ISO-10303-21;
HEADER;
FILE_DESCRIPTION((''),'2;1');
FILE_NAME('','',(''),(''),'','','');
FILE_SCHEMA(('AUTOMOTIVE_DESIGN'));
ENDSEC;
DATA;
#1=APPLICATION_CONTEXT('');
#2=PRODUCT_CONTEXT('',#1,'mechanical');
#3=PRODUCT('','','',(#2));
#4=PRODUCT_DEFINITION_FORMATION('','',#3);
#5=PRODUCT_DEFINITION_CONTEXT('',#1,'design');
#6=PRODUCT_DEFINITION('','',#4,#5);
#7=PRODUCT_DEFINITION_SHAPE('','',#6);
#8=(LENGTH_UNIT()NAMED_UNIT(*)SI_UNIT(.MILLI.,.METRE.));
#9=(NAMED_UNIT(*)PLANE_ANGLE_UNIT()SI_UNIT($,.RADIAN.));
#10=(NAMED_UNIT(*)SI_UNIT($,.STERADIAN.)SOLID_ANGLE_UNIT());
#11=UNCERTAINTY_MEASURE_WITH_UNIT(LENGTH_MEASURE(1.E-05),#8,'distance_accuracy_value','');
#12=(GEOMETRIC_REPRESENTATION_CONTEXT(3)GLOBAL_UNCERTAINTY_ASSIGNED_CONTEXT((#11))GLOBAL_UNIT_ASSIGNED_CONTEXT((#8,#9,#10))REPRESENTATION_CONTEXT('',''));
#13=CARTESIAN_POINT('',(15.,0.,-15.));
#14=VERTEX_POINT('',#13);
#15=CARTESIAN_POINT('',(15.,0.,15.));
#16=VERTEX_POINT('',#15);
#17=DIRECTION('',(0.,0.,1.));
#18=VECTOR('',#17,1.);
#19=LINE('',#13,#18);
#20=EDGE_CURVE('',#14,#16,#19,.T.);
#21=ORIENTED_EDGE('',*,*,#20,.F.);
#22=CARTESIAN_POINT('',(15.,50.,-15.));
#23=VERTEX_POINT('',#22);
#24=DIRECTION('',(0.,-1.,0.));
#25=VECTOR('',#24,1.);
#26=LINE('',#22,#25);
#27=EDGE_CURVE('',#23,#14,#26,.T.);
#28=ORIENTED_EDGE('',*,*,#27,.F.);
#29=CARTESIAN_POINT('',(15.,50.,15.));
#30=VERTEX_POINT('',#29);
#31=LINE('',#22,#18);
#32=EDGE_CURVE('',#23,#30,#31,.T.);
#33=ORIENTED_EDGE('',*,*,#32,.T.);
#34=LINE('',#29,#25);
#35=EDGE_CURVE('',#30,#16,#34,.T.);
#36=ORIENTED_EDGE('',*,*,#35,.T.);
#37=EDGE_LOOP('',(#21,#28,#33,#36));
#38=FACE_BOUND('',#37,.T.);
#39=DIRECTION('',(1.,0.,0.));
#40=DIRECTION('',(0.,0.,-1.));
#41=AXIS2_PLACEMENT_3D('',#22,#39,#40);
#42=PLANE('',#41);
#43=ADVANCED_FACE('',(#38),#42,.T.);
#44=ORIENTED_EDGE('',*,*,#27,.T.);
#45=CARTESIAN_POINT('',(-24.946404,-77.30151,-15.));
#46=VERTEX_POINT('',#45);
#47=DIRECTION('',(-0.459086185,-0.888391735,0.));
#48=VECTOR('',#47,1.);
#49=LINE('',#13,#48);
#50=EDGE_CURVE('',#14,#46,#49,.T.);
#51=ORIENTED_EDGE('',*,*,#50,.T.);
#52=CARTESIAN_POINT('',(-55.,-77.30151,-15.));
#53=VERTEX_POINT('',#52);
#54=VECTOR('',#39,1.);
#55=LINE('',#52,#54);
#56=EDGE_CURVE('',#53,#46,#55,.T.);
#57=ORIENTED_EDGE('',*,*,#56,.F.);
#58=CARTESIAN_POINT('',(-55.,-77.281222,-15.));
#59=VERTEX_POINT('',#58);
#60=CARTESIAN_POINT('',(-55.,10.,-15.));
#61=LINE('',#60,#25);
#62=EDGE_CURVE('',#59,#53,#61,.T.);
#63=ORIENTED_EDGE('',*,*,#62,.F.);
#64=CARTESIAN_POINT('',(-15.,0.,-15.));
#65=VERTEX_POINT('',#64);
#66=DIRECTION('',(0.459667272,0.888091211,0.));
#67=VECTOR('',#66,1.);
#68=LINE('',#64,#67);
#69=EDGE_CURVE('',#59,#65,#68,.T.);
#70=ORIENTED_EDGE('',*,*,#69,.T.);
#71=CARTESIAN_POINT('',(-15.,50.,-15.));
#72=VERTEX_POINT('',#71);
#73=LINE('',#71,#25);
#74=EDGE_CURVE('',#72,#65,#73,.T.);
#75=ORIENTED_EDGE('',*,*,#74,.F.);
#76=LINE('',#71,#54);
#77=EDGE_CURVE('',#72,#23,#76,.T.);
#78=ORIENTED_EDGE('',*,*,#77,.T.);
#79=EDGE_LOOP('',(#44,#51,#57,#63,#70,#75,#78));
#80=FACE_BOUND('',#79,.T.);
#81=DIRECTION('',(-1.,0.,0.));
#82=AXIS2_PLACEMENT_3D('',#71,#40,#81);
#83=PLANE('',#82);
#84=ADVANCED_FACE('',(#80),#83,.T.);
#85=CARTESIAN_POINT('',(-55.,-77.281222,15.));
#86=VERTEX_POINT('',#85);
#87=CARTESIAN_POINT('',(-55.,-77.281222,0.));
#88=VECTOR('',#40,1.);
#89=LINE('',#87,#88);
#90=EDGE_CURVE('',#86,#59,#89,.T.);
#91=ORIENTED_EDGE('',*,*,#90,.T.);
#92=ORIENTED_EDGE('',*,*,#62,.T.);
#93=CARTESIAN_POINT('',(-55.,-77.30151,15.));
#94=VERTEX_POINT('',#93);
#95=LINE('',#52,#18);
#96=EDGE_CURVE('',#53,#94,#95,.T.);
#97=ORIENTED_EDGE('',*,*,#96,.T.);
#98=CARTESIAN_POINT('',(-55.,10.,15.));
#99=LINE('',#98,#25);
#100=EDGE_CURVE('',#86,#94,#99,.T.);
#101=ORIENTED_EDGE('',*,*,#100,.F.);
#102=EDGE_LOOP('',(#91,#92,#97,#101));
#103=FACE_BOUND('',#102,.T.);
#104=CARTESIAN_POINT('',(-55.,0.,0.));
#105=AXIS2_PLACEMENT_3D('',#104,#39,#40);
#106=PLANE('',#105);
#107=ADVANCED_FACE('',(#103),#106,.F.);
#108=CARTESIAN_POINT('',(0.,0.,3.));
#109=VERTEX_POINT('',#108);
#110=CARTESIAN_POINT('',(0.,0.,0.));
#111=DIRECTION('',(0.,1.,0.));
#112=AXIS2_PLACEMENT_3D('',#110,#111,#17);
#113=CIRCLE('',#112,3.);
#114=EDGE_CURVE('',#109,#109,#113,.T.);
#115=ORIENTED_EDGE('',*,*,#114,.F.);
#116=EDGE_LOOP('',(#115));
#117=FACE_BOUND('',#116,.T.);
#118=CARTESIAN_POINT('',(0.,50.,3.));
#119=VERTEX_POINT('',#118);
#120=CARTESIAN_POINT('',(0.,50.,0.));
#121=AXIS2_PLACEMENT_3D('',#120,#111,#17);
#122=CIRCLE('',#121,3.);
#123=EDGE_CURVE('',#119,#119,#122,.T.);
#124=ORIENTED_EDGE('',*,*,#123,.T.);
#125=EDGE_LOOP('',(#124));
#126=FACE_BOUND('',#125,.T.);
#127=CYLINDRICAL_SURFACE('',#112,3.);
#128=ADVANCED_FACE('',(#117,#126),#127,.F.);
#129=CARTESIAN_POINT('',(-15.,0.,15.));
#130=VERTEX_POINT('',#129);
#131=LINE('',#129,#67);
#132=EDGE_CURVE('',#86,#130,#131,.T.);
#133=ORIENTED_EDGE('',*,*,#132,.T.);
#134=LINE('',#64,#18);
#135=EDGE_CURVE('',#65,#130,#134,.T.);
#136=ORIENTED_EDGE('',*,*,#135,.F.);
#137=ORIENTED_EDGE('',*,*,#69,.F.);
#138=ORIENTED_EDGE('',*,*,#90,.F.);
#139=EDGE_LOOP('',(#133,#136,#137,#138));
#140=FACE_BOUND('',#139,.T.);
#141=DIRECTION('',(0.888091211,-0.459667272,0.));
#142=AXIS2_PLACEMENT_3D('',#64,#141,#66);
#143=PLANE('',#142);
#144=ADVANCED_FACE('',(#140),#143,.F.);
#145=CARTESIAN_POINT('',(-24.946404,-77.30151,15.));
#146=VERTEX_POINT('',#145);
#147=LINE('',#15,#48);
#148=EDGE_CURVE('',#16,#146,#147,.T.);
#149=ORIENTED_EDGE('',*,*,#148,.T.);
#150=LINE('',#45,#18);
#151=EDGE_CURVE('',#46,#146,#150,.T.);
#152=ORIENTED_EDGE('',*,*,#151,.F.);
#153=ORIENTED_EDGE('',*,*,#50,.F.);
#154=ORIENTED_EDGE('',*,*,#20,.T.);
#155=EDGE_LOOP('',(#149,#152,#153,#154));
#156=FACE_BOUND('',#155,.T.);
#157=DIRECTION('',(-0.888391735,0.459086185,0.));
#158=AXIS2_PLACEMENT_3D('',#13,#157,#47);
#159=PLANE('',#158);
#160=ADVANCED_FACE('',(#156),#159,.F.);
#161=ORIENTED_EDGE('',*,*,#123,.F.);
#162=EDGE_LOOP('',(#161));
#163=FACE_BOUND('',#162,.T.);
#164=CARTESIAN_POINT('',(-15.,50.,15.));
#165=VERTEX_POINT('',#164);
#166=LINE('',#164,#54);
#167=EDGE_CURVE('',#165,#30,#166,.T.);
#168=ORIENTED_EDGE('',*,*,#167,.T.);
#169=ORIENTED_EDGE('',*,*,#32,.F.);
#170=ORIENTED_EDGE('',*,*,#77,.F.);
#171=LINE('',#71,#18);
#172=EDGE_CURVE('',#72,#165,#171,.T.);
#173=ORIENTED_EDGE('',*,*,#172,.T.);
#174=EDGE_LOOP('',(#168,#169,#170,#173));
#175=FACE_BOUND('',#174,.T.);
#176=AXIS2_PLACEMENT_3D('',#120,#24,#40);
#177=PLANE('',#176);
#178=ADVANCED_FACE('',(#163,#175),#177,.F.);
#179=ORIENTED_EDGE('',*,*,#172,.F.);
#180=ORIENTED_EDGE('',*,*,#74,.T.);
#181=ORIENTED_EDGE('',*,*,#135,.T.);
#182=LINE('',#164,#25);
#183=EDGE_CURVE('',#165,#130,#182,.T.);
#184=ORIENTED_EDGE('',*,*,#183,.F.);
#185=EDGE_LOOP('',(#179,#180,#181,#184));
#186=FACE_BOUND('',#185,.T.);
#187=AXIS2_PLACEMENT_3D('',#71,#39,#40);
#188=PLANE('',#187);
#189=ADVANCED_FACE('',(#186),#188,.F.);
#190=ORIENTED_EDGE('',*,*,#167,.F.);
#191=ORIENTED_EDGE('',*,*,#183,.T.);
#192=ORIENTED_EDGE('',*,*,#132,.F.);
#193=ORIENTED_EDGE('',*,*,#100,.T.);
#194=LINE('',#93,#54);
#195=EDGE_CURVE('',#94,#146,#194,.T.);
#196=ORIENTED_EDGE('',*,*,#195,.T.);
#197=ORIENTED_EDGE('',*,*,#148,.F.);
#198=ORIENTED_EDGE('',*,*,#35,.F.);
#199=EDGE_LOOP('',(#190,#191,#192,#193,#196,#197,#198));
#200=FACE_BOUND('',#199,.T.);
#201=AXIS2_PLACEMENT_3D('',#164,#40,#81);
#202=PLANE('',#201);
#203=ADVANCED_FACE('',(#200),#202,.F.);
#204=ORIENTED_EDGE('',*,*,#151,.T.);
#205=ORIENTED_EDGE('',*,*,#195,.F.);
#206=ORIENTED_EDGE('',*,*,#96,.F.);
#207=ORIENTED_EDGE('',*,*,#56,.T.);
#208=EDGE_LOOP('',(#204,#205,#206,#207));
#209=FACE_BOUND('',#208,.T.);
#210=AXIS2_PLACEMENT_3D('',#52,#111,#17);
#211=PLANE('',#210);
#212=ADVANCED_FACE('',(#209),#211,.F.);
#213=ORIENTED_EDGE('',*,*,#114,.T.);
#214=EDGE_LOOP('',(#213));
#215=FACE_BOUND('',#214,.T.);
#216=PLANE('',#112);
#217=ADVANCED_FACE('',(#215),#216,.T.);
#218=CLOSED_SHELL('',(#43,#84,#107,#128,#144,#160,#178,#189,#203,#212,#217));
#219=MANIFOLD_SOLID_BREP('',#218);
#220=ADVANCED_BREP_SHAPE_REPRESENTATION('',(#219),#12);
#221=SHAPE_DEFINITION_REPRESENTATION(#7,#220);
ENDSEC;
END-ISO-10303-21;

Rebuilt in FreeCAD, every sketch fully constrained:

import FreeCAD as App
import Part
import Sketcher
Q = App.Units.Quantity

doc = App.newDocument("Part")
params = doc.addObject("Spreadsheet::Sheet", "Params")
for row, (alias, value) in enumerate([
    ("sketch1_width", "30 mm"),
    ("pad1_length", "50 mm"),
    ("sketch2_height", "30 mm"),
    ("pad2_length", "40 mm"),
    ("sketch3_height", "30 mm"),
    ("pad3_length", "30 mm"),
    ("sketch4_width", "40 mm"),
    ("sketch4_height", "10 mm"),
    ("pocket1_length", "30 mm"),
    ("sketch5_width", "40 mm"),
    ("pocket2_length", "30 mm"),
    ("pocket3_length", "30 mm"),
    ("sketch7_diameter", "6 mm"),
    ("pocket4_length", "50 mm"),
], start=1):
    params.set(f"A{row}", alias)
    params.set(f"B{row}", "=" + value)
    params.setAlias(f"B{row}", alias)

body = doc.addObject("PartDesign::Body", "Body")

sketch1 = doc.addObject("Sketcher::SketchObject", "Sketch")
body.addObject(sketch1)
sketch1.AttachmentSupport = (doc.XZ_Plane, [""])
sketch1.MapMode = "FlatFace"
sketch1.addGeometry(Part.LineSegment(App.Vector(-15, -15, 0), App.Vector(-15, 15, 0)), False)
sketch1.addGeometry(Part.LineSegment(App.Vector(-15, 15, 0), App.Vector(15, 15, 0)), False)
sketch1.addGeometry(Part.LineSegment(App.Vector(15, 15, 0), App.Vector(15, -15, 0)), False)
sketch1.addGeometry(Part.LineSegment(App.Vector(15, -15, 0), App.Vector(-15, -15, 0)), False)
sketch1.addConstraint(Sketcher.Constraint("Coincident", 0, 2, 1, 1))
sketch1.addConstraint(Sketcher.Constraint("Coincident", 1, 2, 2, 1))
sketch1.addConstraint(Sketcher.Constraint("Coincident", 2, 2, 3, 1))
sketch1.addConstraint(Sketcher.Constraint("Coincident", 3, 2, 0, 1))
sketch1.addConstraint(Sketcher.Constraint("Vertical", 0))
sketch1.addConstraint(Sketcher.Constraint("Horizontal", 1))
sketch1.addConstraint(Sketcher.Constraint("Vertical", 2))
sketch1.addConstraint(Sketcher.Constraint("Horizontal", 3))
sketch1.addConstraint(Sketcher.Constraint("Symmetric", 0, 2, 2, 2, -1, 1))
sketch1.addConstraint(Sketcher.Constraint("Equal", 3, 0))
sketch1.addConstraint(Sketcher.Constraint("DistanceX", 1, 1, 1, 2, Q("30 mm")))
sketch1.setExpression("Constraints[10]", "Params.sketch1_width")
pad1 = doc.addObject("PartDesign::Pad", "Pad")
body.addObject(pad1)
pad1.Profile = sketch1
pad1.setExpression("Length", "Params.pad1_length")
pad1.Reversed = True

sketch2 = doc.addObject("Sketcher::SketchObject", "Sketch001")
body.addObject(sketch2)
sketch2.AttachmentSupport = (doc.YZ_Plane, [""])
sketch2.MapMode = "FlatFace"
sketch2.AttachmentOffset = App.Placement(App.Vector(0, 0, -15), App.Rotation())
sketch2.addGeometry(Part.LineSegment(App.Vector(10, -15, 0), App.Vector(-77, -15, 0)), False)
sketch2.addGeometry(Part.LineSegment(App.Vector(-77, -15, 0), App.Vector(-77, 15, 0)), False)
sketch2.addGeometry(Part.LineSegment(App.Vector(-77, 15, 0), App.Vector(10, 15, 0)), False)
sketch2.addGeometry(Part.LineSegment(App.Vector(10, 15, 0), App.Vector(10, -15, 0)), False)
sketch2.addConstraint(Sketcher.Constraint("Coincident", 0, 2, 1, 1))
sketch2.addConstraint(Sketcher.Constraint("Coincident", 1, 2, 2, 1))
sketch2.addConstraint(Sketcher.Constraint("Coincident", 2, 2, 3, 1))
sketch2.addConstraint(Sketcher.Constraint("Coincident", 3, 2, 0, 1))
sketch2.addConstraint(Sketcher.Constraint("Horizontal", 0))
sketch2.addConstraint(Sketcher.Constraint("Vertical", 1))
sketch2.addConstraint(Sketcher.Constraint("Horizontal", 2))
sketch2.addConstraint(Sketcher.Constraint("Vertical", 3))
sketch2.addConstraint(Sketcher.Constraint("DistanceY", 1, 1, 1, 2, Q("30 mm")))
sketch2.addConstraint(Sketcher.Constraint("DistanceY", 0, 2, -1, 1, Q("15 mm")))
sketch2.addConstraint(Sketcher.Constraint("DistanceX", -1, 1, 2, 2, Q("10 mm")))
sketch2.addConstraint(Sketcher.Constraint("DistanceX", 0, 2, 0, 1, Q("87.30151 mm")))
sketch2.setExpression("Constraints[8]", "Params.sketch2_height")
pad2 = doc.addObject("PartDesign::Pad", "Pad001")
body.addObject(pad2)
pad2.Profile = sketch2
pad2.setExpression("Length", "Params.pad2_length")
pad2.Reversed = True

sketch3 = doc.addObject("Sketcher::SketchObject", "Sketch002")
body.addObject(sketch3)
sketch3.AttachmentSupport = (doc.YZ_Plane, [""])
sketch3.MapMode = "FlatFace"
sketch3.AttachmentOffset = App.Placement(App.Vector(0, 0, -15), App.Rotation())
sketch3.addGeometry(Part.LineSegment(App.Vector(0, 15, 0), App.Vector(-77, 15, 0)), False)
sketch3.addGeometry(Part.LineSegment(App.Vector(-77, 15, 0), App.Vector(-77, -15, 0)), False)
sketch3.addGeometry(Part.LineSegment(App.Vector(-77, -15, 0), App.Vector(0, -15, 0)), False)
sketch3.addGeometry(Part.LineSegment(App.Vector(0, -15, 0), App.Vector(0, 15, 0)), False)
sketch3.addConstraint(Sketcher.Constraint("Coincident", 0, 2, 1, 1))
sketch3.addConstraint(Sketcher.Constraint("Coincident", 1, 2, 2, 1))
sketch3.addConstraint(Sketcher.Constraint("Coincident", 2, 2, 3, 1))
sketch3.addConstraint(Sketcher.Constraint("Coincident", 3, 2, 0, 1))
sketch3.addConstraint(Sketcher.Constraint("Horizontal", 0))
sketch3.addConstraint(Sketcher.Constraint("Vertical", 1))
sketch3.addConstraint(Sketcher.Constraint("Horizontal", 2))
sketch3.addConstraint(Sketcher.Constraint("Vertical", 3))
sketch3.addConstraint(Sketcher.Constraint("Symmetric", 2, 2, 3, 2, -1, 1))
sketch3.addConstraint(Sketcher.Constraint("DistanceY", 1, 2, 1, 1, Q("30 mm")))
sketch3.addConstraint(Sketcher.Constraint("DistanceX", 0, 2, 0, 1, Q("77.30151 mm")))
sketch3.setExpression("Constraints[9]", "Params.sketch3_height")
pad3 = doc.addObject("PartDesign::Pad", "Pad002")
body.addObject(pad3)
pad3.Profile = sketch3
pad3.setExpression("Length", "Params.pad3_length")

sketch4 = doc.addObject("Sketcher::SketchObject", "Sketch003")
body.addObject(sketch4)
sketch4.AttachmentSupport = (doc.XY_Plane, [""])
sketch4.MapMode = "FlatFace"
sketch4.AttachmentOffset = App.Placement(App.Vector(0, 0, 15), App.Rotation())
sketch4.addGeometry(Part.LineSegment(App.Vector(-55, 10, 0), App.Vector(-55, 0, 0)), False)
sketch4.addGeometry(Part.LineSegment(App.Vector(-55, 0, 0), App.Vector(-15, 0, 0)), False)
sketch4.addGeometry(Part.LineSegment(App.Vector(-15, 0, 0), App.Vector(-15, 10, 0)), False)
sketch4.addGeometry(Part.LineSegment(App.Vector(-15, 10, 0), App.Vector(-55, 10, 0)), False)
sketch4.addConstraint(Sketcher.Constraint("Coincident", 0, 2, 1, 1))
sketch4.addConstraint(Sketcher.Constraint("Coincident", 1, 2, 2, 1))
sketch4.addConstraint(Sketcher.Constraint("Coincident", 2, 2, 3, 1))
sketch4.addConstraint(Sketcher.Constraint("Coincident", 3, 2, 0, 1))
sketch4.addConstraint(Sketcher.Constraint("Vertical", 0))
sketch4.addConstraint(Sketcher.Constraint("Horizontal", 1))
sketch4.addConstraint(Sketcher.Constraint("Vertical", 2))
sketch4.addConstraint(Sketcher.Constraint("Horizontal", 3))
sketch4.addConstraint(Sketcher.Constraint("PointOnObject", 0, 2, -1))
sketch4.addConstraint(Sketcher.Constraint("DistanceX", 1, 1, 1, 2, Q("40 mm")))
sketch4.addConstraint(Sketcher.Constraint("DistanceY", 0, 2, 0, 1, Q("10 mm")))
sketch4.addConstraint(Sketcher.Constraint("DistanceX", 0, 2, -1, 1, Q("55 mm")))
sketch4.setExpression("Constraints[9]", "Params.sketch4_width")
sketch4.setExpression("Constraints[10]", "Params.sketch4_height")
pocket1 = doc.addObject("PartDesign::Pocket", "Pocket")
body.addObject(pocket1)
pocket1.Profile = sketch4
pocket1.setExpression("Length", "Params.pocket1_length")

sketch5 = doc.addObject("Sketcher::SketchObject", "Sketch004")
body.addObject(sketch5)
sketch5.AttachmentSupport = (doc.XY_Plane, [""])
sketch5.MapMode = "FlatFace"
sketch5.AttachmentOffset = App.Placement(App.Vector(0, 0, 15), App.Rotation())
sketch5.addGeometry(Part.LineSegment(App.Vector(-15, 0, 0), App.Vector(-55, 0, 0)), False)
sketch5.addGeometry(Part.LineSegment(App.Vector(-55, 0, 0), App.Vector(-95, -78, 0)), False)
sketch5.addGeometry(Part.LineSegment(App.Vector(-95, -78, 0), App.Vector(-55, -78, 0)), False)
sketch5.addGeometry(Part.LineSegment(App.Vector(-55, -78, 0), App.Vector(-15, 0, 0)), False)
sketch5.addConstraint(Sketcher.Constraint("Coincident", 0, 2, 1, 1))
sketch5.addConstraint(Sketcher.Constraint("Coincident", 1, 2, 2, 1))
sketch5.addConstraint(Sketcher.Constraint("Coincident", 2, 2, 3, 1))
sketch5.addConstraint(Sketcher.Constraint("Coincident", 3, 2, 0, 1))
sketch5.addConstraint(Sketcher.Constraint("Horizontal", 0))
sketch5.addConstraint(Sketcher.Constraint("Horizontal", 2))
sketch5.addConstraint(Sketcher.Constraint("PointOnObject", 0, 2, -1))
sketch5.addConstraint(Sketcher.Constraint("Parallel", 1, 3))
sketch5.addConstraint(Sketcher.Constraint("DistanceX", 0, 2, 0, 1, Q("40 mm")))
sketch5.addConstraint(Sketcher.Constraint("DistanceX", 0, 2, -1, 1, Q("55 mm")))
sketch5.addConstraint(Sketcher.Constraint("DistanceX", 1, 2, -1, 1, Q("95.241359 mm")))
sketch5.addConstraint(Sketcher.Constraint("Distance", 1, Q("87.544538 mm")))
sketch5.setExpression("Constraints[8]", "Params.sketch5_width")
pocket2 = doc.addObject("PartDesign::Pocket", "Pocket001")
body.addObject(pocket2)
pocket2.Profile = sketch5
pocket2.setExpression("Length", "Params.pocket2_length")

sketch6 = doc.addObject("Sketcher::SketchObject", "Sketch005")
body.addObject(sketch6)
sketch6.AttachmentSupport = (doc.XY_Plane, [""])
sketch6.MapMode = "FlatFace"
sketch6.AttachmentOffset = App.Placement(App.Vector(0, 0, 15), App.Rotation())
sketch6.addGeometry(Part.LineSegment(App.Vector(15, 0, 0), App.Vector(-26, -80, 0)), False)
sketch6.addGeometry(Part.LineSegment(App.Vector(-26, -80, 0), App.Vector(26, -80, 0)), False)
sketch6.addGeometry(Part.LineSegment(App.Vector(26, -80, 0), App.Vector(67, 0, 0)), False)
sketch6.addGeometry(Part.LineSegment(App.Vector(67, 0, 0), App.Vector(15, 0, 0)), False)
sketch6.addConstraint(Sketcher.Constraint("Coincident", 0, 2, 1, 1))
sketch6.addConstraint(Sketcher.Constraint("Coincident", 1, 2, 2, 1))
sketch6.addConstraint(Sketcher.Constraint("Coincident", 2, 2, 3, 1))
sketch6.addConstraint(Sketcher.Constraint("Coincident", 3, 2, 0, 1))
sketch6.addConstraint(Sketcher.Constraint("Horizontal", 1))
sketch6.addConstraint(Sketcher.Constraint("Horizontal", 3))
sketch6.addConstraint(Sketcher.Constraint("PointOnObject", 2, 2, -1))
sketch6.addConstraint(Sketcher.Constraint("Parallel", 0, 2))
sketch6.addConstraint(Sketcher.Constraint("DistanceX", -1, 1, 3, 2, Q("15 mm")))
sketch6.addConstraint(Sketcher.Constraint("Distance", 0, Q("89.580628 mm")))
sketch6.addConstraint(Sketcher.Constraint("DistanceX", 1, 1, 1, 2, Q("51.751374 mm")))
sketch6.addConstraint(Sketcher.Constraint("DistanceX", 0, 2, -1, 1, Q("26.125229 mm")))
pocket3 = doc.addObject("PartDesign::Pocket", "Pocket002")
body.addObject(pocket3)
pocket3.Profile = sketch6
pocket3.setExpression("Length", "Params.pocket3_length")

sketch7 = doc.addObject("Sketcher::SketchObject", "Sketch006")
body.addObject(sketch7)
sketch7.AttachmentSupport = (doc.XZ_Plane, [""])
sketch7.MapMode = "FlatFace"
sketch7.AttachmentOffset = App.Placement(App.Vector(0, 0, -50), App.Rotation())
sketch7.addGeometry(Part.Circle(App.Vector(0, 0, 0), App.Vector(0, 0, 1), 3), False)
sketch7.addConstraint(Sketcher.Constraint("Coincident", 0, 3, -1, 1))
sketch7.addConstraint(Sketcher.Constraint("Diameter", 0, Q("6 mm")))
sketch7.setExpression("Constraints[1]", "Params.sketch7_diameter")
pocket4 = doc.addObject("PartDesign::Pocket", "Pocket003")
body.addObject(pocket4)
pocket4.Profile = sketch7
pocket4.setExpression("Length", "Params.pocket4_length")
pocket4.Reversed = True

doc.recompute()
